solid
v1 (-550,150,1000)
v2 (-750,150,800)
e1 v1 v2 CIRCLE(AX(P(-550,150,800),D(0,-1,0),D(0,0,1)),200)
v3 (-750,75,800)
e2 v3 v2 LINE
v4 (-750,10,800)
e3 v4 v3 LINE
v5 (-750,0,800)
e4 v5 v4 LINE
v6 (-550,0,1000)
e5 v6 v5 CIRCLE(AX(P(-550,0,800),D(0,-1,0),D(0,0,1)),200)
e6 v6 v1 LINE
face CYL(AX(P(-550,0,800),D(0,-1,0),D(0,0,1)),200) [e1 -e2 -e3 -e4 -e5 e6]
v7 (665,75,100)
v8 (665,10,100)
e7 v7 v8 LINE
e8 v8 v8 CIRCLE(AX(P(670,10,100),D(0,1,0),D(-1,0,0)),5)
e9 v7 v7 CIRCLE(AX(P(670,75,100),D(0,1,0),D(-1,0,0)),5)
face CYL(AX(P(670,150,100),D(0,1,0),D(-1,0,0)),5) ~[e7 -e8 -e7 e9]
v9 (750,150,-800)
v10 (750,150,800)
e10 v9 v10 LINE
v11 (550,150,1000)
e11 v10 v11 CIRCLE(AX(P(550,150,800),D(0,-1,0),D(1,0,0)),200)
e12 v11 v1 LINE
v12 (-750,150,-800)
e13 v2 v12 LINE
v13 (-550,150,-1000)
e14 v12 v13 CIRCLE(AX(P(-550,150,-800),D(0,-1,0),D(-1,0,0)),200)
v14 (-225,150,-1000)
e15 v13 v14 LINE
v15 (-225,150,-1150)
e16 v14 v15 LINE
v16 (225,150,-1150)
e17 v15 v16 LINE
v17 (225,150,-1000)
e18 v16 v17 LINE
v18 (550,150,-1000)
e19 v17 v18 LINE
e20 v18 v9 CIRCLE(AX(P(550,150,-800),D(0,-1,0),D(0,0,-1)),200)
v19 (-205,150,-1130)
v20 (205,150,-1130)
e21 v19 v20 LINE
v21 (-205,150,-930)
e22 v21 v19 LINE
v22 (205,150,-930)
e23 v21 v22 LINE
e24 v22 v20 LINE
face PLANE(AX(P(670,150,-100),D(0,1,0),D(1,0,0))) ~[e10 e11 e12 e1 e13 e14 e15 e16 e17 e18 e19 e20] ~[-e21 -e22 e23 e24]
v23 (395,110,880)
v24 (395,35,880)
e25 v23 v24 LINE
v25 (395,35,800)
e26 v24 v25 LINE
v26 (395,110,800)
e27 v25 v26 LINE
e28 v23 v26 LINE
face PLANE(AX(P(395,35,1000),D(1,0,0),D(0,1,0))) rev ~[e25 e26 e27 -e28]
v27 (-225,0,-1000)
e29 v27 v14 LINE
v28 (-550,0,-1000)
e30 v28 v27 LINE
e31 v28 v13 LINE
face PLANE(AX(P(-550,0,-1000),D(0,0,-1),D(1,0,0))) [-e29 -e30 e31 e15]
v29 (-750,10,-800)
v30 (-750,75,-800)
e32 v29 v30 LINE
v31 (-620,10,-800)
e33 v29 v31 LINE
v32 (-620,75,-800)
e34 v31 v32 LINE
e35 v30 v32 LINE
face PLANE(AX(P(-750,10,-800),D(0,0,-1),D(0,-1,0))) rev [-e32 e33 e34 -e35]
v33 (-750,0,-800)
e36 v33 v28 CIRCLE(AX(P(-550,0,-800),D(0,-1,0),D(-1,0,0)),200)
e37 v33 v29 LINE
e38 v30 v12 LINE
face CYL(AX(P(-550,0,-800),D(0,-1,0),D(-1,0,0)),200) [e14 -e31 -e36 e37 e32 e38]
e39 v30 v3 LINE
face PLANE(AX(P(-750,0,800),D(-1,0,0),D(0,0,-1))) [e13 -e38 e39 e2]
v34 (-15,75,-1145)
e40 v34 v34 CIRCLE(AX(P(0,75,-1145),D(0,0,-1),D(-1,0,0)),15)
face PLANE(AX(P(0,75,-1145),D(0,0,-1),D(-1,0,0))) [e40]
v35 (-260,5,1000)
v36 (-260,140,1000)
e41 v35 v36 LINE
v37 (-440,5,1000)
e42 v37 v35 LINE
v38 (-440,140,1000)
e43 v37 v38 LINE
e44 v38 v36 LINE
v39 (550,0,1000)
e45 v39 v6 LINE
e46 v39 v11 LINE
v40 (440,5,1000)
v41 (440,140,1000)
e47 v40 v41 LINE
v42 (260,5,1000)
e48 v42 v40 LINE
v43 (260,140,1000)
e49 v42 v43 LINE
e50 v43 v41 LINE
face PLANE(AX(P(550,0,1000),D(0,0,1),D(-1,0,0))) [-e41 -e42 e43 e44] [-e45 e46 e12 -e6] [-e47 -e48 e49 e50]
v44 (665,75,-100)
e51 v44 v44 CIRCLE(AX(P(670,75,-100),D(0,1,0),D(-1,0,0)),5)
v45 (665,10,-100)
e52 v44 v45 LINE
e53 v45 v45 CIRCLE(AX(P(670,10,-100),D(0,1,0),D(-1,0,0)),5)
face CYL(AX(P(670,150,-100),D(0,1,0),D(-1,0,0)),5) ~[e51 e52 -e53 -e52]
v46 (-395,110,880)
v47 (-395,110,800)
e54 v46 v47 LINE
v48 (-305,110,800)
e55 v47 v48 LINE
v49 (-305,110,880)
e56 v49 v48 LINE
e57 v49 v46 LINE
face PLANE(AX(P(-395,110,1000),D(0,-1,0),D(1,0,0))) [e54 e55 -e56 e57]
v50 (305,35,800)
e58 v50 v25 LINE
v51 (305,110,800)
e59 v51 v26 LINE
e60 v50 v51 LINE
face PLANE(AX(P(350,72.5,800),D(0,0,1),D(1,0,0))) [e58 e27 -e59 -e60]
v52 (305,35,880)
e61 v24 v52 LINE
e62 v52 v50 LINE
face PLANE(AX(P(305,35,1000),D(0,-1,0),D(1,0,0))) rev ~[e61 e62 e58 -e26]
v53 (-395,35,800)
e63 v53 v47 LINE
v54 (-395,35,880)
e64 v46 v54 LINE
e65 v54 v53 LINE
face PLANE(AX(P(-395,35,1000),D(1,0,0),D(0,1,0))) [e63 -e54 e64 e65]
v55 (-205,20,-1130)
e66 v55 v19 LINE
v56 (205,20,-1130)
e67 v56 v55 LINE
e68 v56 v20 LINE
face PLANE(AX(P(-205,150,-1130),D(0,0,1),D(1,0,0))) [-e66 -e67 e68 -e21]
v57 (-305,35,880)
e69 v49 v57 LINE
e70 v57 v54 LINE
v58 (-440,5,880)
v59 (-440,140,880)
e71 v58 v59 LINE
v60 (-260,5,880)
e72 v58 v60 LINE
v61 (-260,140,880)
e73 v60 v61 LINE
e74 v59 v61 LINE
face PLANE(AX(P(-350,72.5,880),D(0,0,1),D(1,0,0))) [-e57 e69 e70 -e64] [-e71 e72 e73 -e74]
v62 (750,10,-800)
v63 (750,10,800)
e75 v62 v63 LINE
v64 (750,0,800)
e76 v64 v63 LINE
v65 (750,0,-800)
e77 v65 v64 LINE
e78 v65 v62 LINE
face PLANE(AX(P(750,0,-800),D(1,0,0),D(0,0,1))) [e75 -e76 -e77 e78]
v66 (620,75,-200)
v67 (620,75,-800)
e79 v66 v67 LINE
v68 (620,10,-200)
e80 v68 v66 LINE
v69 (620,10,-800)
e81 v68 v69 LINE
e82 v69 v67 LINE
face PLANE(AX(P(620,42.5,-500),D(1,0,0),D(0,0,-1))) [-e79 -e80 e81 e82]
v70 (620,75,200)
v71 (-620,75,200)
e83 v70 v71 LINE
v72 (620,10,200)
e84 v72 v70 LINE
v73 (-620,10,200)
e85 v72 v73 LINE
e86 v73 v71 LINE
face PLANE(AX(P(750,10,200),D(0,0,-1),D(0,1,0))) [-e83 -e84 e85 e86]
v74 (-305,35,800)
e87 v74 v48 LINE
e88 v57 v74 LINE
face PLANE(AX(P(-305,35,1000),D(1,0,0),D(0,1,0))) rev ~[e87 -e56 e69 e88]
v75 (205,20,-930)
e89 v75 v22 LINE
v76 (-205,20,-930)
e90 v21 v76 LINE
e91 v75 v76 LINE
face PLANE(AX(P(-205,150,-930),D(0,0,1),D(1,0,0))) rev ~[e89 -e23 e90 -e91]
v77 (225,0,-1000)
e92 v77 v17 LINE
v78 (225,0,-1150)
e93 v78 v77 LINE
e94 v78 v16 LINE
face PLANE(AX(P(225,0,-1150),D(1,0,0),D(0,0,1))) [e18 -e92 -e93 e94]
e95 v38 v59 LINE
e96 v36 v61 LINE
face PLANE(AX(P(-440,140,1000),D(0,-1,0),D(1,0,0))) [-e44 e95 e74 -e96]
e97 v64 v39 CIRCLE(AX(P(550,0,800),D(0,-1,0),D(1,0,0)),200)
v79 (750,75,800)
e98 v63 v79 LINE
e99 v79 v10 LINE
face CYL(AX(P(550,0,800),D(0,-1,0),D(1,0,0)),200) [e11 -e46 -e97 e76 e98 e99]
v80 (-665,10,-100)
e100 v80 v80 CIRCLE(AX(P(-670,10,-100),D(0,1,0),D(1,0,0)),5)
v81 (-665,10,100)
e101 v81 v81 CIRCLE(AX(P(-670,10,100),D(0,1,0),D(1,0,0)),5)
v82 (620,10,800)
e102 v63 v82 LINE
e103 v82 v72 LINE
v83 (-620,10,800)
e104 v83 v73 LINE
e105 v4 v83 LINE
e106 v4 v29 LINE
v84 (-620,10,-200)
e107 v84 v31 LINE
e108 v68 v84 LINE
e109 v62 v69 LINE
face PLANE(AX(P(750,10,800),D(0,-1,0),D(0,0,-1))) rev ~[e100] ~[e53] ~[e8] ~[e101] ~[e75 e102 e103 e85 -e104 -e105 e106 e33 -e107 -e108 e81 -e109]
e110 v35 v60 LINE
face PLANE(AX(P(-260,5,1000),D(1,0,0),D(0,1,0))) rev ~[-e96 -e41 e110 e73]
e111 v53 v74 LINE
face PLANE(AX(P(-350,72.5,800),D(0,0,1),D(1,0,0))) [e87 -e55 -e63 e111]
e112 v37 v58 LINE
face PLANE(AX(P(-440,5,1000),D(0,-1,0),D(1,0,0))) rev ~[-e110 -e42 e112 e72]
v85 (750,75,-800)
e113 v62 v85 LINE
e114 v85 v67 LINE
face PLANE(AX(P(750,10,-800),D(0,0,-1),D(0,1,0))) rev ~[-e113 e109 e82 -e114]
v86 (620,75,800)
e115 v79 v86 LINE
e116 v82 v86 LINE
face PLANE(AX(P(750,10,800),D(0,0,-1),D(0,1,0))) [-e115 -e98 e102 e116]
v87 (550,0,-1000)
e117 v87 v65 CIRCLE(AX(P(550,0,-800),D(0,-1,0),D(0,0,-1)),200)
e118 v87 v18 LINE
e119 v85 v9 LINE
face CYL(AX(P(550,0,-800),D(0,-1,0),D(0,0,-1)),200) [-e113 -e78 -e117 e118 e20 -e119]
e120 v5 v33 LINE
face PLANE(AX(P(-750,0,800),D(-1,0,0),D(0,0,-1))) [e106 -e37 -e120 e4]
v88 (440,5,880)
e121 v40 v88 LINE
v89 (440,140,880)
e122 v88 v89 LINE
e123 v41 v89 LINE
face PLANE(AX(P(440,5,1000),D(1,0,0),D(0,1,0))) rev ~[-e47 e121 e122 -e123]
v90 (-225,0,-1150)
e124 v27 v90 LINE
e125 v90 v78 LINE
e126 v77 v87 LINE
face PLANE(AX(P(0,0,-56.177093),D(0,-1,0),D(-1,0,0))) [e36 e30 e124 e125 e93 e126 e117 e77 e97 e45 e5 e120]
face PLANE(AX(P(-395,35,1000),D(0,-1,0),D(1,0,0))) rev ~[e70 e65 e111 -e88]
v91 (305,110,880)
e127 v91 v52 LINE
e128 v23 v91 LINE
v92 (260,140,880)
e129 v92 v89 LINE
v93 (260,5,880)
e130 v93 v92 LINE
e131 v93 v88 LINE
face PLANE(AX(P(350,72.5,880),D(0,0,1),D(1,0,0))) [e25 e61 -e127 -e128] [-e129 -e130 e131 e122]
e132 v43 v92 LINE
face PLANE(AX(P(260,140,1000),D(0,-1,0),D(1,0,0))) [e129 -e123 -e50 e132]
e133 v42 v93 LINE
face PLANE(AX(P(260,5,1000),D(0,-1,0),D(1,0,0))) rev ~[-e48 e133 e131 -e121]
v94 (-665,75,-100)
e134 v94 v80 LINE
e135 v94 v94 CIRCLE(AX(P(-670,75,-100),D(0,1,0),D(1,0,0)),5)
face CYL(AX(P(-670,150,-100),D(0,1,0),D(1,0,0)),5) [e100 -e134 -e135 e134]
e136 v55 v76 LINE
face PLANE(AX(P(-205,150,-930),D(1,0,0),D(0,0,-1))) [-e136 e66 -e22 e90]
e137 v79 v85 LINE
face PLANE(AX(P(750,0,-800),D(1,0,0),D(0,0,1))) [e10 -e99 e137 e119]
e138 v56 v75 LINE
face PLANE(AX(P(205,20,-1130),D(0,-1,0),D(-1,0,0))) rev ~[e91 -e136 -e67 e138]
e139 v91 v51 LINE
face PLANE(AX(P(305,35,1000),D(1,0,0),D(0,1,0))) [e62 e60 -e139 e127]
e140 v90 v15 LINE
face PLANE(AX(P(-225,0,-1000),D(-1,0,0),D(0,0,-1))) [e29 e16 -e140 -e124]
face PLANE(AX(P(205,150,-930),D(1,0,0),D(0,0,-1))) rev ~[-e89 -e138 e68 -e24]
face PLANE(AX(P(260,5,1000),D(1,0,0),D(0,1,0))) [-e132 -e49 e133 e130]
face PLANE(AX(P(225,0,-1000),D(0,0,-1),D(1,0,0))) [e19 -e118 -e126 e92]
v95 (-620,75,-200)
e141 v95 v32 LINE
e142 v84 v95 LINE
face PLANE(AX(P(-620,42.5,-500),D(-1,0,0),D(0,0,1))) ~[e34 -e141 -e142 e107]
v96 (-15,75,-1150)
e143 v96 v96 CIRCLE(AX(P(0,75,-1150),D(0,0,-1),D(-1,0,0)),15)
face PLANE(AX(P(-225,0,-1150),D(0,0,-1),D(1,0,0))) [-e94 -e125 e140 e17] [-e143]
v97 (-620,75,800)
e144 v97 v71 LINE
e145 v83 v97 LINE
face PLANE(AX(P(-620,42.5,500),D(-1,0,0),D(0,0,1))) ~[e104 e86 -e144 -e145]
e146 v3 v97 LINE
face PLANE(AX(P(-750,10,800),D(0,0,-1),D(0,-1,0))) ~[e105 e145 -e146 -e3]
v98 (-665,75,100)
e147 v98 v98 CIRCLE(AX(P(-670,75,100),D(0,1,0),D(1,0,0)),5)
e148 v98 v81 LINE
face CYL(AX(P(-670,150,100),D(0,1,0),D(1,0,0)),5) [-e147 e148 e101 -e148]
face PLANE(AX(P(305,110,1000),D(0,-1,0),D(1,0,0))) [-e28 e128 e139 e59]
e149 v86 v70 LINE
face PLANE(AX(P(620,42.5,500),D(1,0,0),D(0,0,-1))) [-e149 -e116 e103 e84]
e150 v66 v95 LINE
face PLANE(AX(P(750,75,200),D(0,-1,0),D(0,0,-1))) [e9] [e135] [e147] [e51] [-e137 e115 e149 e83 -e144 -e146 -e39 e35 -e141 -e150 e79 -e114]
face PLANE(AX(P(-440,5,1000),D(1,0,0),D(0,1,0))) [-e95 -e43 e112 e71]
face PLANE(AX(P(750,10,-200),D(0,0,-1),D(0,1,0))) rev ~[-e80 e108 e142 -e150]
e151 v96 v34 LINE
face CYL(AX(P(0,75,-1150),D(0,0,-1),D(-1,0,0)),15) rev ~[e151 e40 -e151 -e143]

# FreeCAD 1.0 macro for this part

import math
import FreeCAD as App
import Part
import Sketcher
from FreeCAD import Vector


def add_polygon(sketch, points):
    """Adds a closed chain of lines whose ends are joined by coincident constraints."""
    first, n = sketch.GeometryCount, len(points)
    for a, b in zip(points, points[1:] + points[:1]):
        sketch.addGeometry(Part.LineSegment(App.Vector(*a, 0), App.Vector(*b, 0)), False)
    for i in range(n):
        sketch.addConstraint(Sketcher.Constraint("Coincident", first + i, 2, first + (i + 1) % n, 1))

doc = App.newDocument("Part")
body = doc.addObject("PartDesign::Body", "Body")

# Sketch on XZ plane
sketch1 = body.newObject("Sketcher::SketchObject", "Sketch")
sketch1.AttachmentSupport = (doc.getObject("XZ_Plane"), [""])
sketch1.MapMode = "FlatFace"
sketch1.addGeometry(Part.LineSegment(Vector(-225, -1150, 0), Vector(-225, -1000, 0)), False)
sketch1.addGeometry(Part.LineSegment(Vector(-225, -1000, 0), Vector(-550, -1000, 0)), False)
sketch1.addGeometry(Part.ArcOfCircle(Part.Circle(Vector(-550, -800, 0), Vector(0, 0, 1), 200), math.radians(-180), math.radians(-90)), False)
sketch1.addGeometry(Part.LineSegment(Vector(-750, -800, 0), Vector(-750, 800, 0)), False)
sketch1.addGeometry(Part.ArcOfCircle(Part.Circle(Vector(-550, 800, 0), Vector(0, 0, 1), 200), math.radians(90), math.radians(180)), False)
sketch1.addGeometry(Part.LineSegment(Vector(-550, 1000, 0), Vector(550, 1000, 0)), False)
sketch1.addGeometry(Part.ArcOfCircle(Part.Circle(Vector(550, 800, 0), Vector(0, 0, 1), 200), math.radians(0), math.radians(90)), False)
sketch1.addGeometry(Part.LineSegment(Vector(750, 800, 0), Vector(750, -800, 0)), False)
sketch1.addGeometry(Part.ArcOfCircle(Part.Circle(Vector(550, -800, 0), Vector(0, 0, 1), 200), math.radians(-90), math.radians(0)), False)
sketch1.addGeometry(Part.LineSegment(Vector(550, -1000, 0), Vector(225, -1000, 0)), False)
sketch1.addGeometry(Part.LineSegment(Vector(225, -1000, 0), Vector(225, -1150, 0)), False)
sketch1.addGeometry(Part.LineSegment(Vector(225, -1150, 0), Vector(-225, -1150, 0)), False)
sketch1.addConstraint(Sketcher.Constraint("Coincident", 0, 2, 1, 1))
sketch1.addConstraint(Sketcher.Constraint("Tangent", 1, 2, 2, 2))
sketch1.addConstraint(Sketcher.Constraint("Tangent", 2, 1, 3, 1))
sketch1.addConstraint(Sketcher.Constraint("Tangent", 3, 2, 4, 2))
sketch1.addConstraint(Sketcher.Constraint("Tangent", 4, 1, 5, 1))
sketch1.addConstraint(Sketcher.Constraint("Tangent", 5, 2, 6, 2))
sketch1.addConstraint(Sketcher.Constraint("Tangent", 6, 1, 7, 1))
sketch1.addConstraint(Sketcher.Constraint("Tangent", 7, 2, 8, 2))
sketch1.addConstraint(Sketcher.Constraint("Tangent", 8, 1, 9, 1))
sketch1.addConstraint(Sketcher.Constraint("Coincident", 9, 2, 10, 1))
sketch1.addConstraint(Sketcher.Constraint("Coincident", 10, 2, 11, 1))
sketch1.addConstraint(Sketcher.Constraint("Coincident", 11, 2, 0, 1))
sketch1.addConstraint(Sketcher.Constraint("Vertical", 0))
sketch1.addConstraint(Sketcher.Constraint("Horizontal", 1))
sketch1.addConstraint(Sketcher.Constraint("Vertical", 3))
sketch1.addConstraint(Sketcher.Constraint("Horizontal", 5))
sketch1.addConstraint(Sketcher.Constraint("Vertical", 7))
sketch1.addConstraint(Sketcher.Constraint("Horizontal", 9))
sketch1.addConstraint(Sketcher.Constraint("Vertical", 10))
sketch1.addConstraint(Sketcher.Constraint("Horizontal", 11))
sketch1.addConstraint(Sketcher.Constraint("Equal", 2, 4))
sketch1.addConstraint(Sketcher.Constraint("Equal", 4, 6))
sketch1.addConstraint(Sketcher.Constraint("Equal", 6, 8))
sketch1.addConstraint(Sketcher.Constraint("Symmetric", 2, 3, 6, 3, -1, 1))
sketch1.addConstraint(Sketcher.Constraint("Symmetric", 0, 2, 9, 2, -2))
sketch1.addConstraint(Sketcher.Constraint("Radius", 2, 200.0))
sketch1.addConstraint(Sketcher.Constraint("DistanceX", 1, 2, 1, 1, 325.0))
sketch1.addConstraint(Sketcher.Constraint("DistanceX", 5, 1, 5, 2, 1100.0))
sketch1.addConstraint(Sketcher.Constraint("DistanceY", 0, 1, 0, 2, 150.0))
sketch1.addConstraint(Sketcher.Constraint("DistanceY", 3, 1, 3, 2, 1600.0))
pad1 = body.newObject("PartDesign::Pad", "Pad")
pad1.Profile = sketch1
pad1.Length = 150
pad1.Reversed = True

# Sketch on YZ plane
sketch2 = body.newObject("Sketcher::SketchObject", "Sketch001")
sketch2.AttachmentSupport = (doc.getObject("YZ_Plane"), [""])
sketch2.MapMode = "FlatFace"
sketch2.AttachmentOffset = App.Placement(Vector(0, 0, 750), App.Rotation())
add_polygon(sketch2, [(75, 200), (10, 200), (10, -200), (75, -200)])  # lines 0-3
sketch2.addConstraint(Sketcher.Constraint("Horizontal", 0))
sketch2.addConstraint(Sketcher.Constraint("Vertical", 1))
sketch2.addConstraint(Sketcher.Constraint("Horizontal", 2))
sketch2.addConstraint(Sketcher.Constraint("Vertical", 3))
sketch2.addConstraint(Sketcher.Constraint("DistanceX", 0, 2, 0, 1, 65.0))
sketch2.addConstraint(Sketcher.Constraint("DistanceY", 1, 2, 1, 1, 400.0))
sketch2.addConstraint(Sketcher.Constraint("DistanceX", -1, 1, 0, 2, 10.0))
sketch2.addConstraint(Sketcher.Constraint("DistanceY", -1, 1, 0, 2, 200.0))
pocket1 = body.newObject("PartDesign::Pocket", "Pocket")
pocket1.Profile = sketch2
pocket1.Type = "ThroughAll"
pocket1.Midplane = True

# Sketch on YZ plane
sketch3 = body.newObject("Sketcher::SketchObject", "Sketch002")
sketch3.AttachmentSupport = (doc.getObject("YZ_Plane"), [""])
sketch3.MapMode = "FlatFace"
sketch3.AttachmentOffset = App.Placement(Vector(0, 0, 750), App.Rotation())
add_polygon(sketch3, [(75, -200), (10, -200), (10, -800), (75, -800)])  # lines 0-3
add_polygon(sketch3, [(75, 800), (10, 800), (10, 200), (75, 200)])  # lines 4-7
sketch3.addConstraint(Sketcher.Constraint("Horizontal", 0))
sketch3.addConstraint(Sketcher.Constraint("Vertical", 1))
sketch3.addConstraint(Sketcher.Constraint("Horizontal", 2))
sketch3.addConstraint(Sketcher.Constraint("Vertical", 3))
sketch3.addConstraint(Sketcher.Constraint("Horizontal", 4))
sketch3.addConstraint(Sketcher.Constraint("Vertical", 5))
sketch3.addConstraint(Sketcher.Constraint("Horizontal", 6))
sketch3.addConstraint(Sketcher.Constraint("Vertical", 7))
sketch3.addConstraint(Sketcher.Constraint("Symmetric", 1, 2, 4, 2, -1))
sketch3.addConstraint(Sketcher.Constraint("Symmetric", 3, 2, 6, 2, -1))
sketch3.addConstraint(Sketcher.Constraint("DistanceX", 0, 2, 0, 1, 65.0))
sketch3.addConstraint(Sketcher.Constraint("DistanceY", 1, 2, 1, 1, 600.0))
sketch3.addConstraint(Sketcher.Constraint("DistanceX", -1, 1, 0, 2, 10.0))
sketch3.addConstraint(Sketcher.Constraint("DistanceY", 0, 2, -1, 1, 200.0))
pocket2 = body.newObject("PartDesign::Pocket", "Pocket001")
pocket2.Profile = sketch3
pocket2.Length = 130
doc.recompute()

mirrored = body.newObject("PartDesign::Mirrored", "Mirrored")
mirrored.Originals = [pocket2]
mirrored.MirrorPlane = (doc.getObject("YZ_Plane"), [""])
body.Tip = mirrored

# Sketch on XZ plane
sketch4 = body.newObject("Sketcher::SketchObject", "Sketch003")
sketch4.AttachmentSupport = (doc.getObject("XZ_Plane"), [""])
sketch4.MapMode = "FlatFace"
sketch4.AttachmentOffset = App.Placement(Vector(0, 0, -150), App.Rotation())
sketch4.addGeometry(Part.Circle(Vector(-670, -100, 0), Vector(0, 0, 1), 5), False)
sketch4.addGeometry(Part.Circle(Vector(-670, 100, 0), Vector(0, 0, 1), 5), False)
sketch4.addConstraint(Sketcher.Constraint("Equal", 0, 1))
sketch4.addConstraint(Sketcher.Constraint("Symmetric", 0, 3, 1, 3, -1))
sketch4.addConstraint(Sketcher.Constraint("Diameter", 0, 10.0))
sketch4.addConstraint(Sketcher.Constraint("DistanceX", 0, 3, -1, 1, 670.0))
sketch4.addConstraint(Sketcher.Constraint("DistanceY", 0, 3, -1, 1, 100.0))
pad2 = body.newObject("PartDesign::Pad", "Pad001")
pad2.Profile = sketch4
pad2.Length = 150
doc.recompute()

mirrored2 = body.newObject("PartDesign::Mirrored", "Mirrored001")
mirrored2.Originals = [pad2]
mirrored2.MirrorPlane = (doc.getObject("YZ_Plane"), [""])
body.Tip = mirrored2

# Sketch on XY plane
sketch5 = body.newObject("Sketcher::SketchObject", "Sketch004")
sketch5.AttachmentSupport = (doc.getObject("XY_Plane"), [""])
sketch5.MapMode = "FlatFace"
sketch5.AttachmentOffset = App.Placement(Vector(0, 0, 1000), App.Rotation())
add_polygon(sketch5, [(-395, 110), (-395, 35), (-305, 35), (-305, 110)])  # lines 0-3
add_polygon(sketch5, [(305, 110), (305, 35), (395, 35), (395, 110)])  # lines 4-7
sketch5.addConstraint(Sketcher.Constraint("Vertical", 0))
sketch5.addConstraint(Sketcher.Constraint("Horizontal", 1))
sketch5.addConstraint(Sketcher.Constraint("Vertical", 2))
sketch5.addConstraint(Sketcher.Constraint("Horizontal", 3))
sketch5.addConstraint(Sketcher.Constraint("Vertical", 4))
sketch5.addConstraint(Sketcher.Constraint("Horizontal", 5))
sketch5.addConstraint(Sketcher.Constraint("Vertical", 6))
sketch5.addConstraint(Sketcher.Constraint("Horizontal", 7))
sketch5.addConstraint(Sketcher.Constraint("Symmetric", 1, 2, 4, 2, -2))
sketch5.addConstraint(Sketcher.Constraint("Symmetric", 3, 2, 6, 2, -2))
sketch5.addConstraint(Sketcher.Constraint("DistanceX", 1, 1, 1, 2, 90.0))
sketch5.addConstraint(Sketcher.Constraint("DistanceY", 0, 2, 0, 1, 75.0))
sketch5.addConstraint(Sketcher.Constraint("DistanceX", 0, 2, -1, 1, 395.0))
sketch5.addConstraint(Sketcher.Constraint("DistanceY", -1, 1, 0, 2, 35.0))
pocket3 = body.newObject("PartDesign::Pocket", "Pocket002")
pocket3.Profile = sketch5
pocket3.Length = 200

# Sketch on XY plane
sketch6 = body.newObject("Sketcher::SketchObject", "Sketch005")
sketch6.AttachmentSupport = (doc.getObject("XY_Plane"), [""])
sketch6.MapMode = "FlatFace"
sketch6.AttachmentOffset = App.Placement(Vector(0, 0, -1150), App.Rotation())
sketch6.addGeometry(Part.Circle(Vector(0, 75, 0), Vector(0, 0, 1), 15), False)
sketch6.addConstraint(Sketcher.Constraint("PointOnObject", 0, 3, -2))
sketch6.addConstraint(Sketcher.Constraint("Diameter", 0, 30.0))
sketch6.addConstraint(Sketcher.Constraint("DistanceY", -1, 1, 0, 3, 75.0))
pocket4 = body.newObject("PartDesign::Pocket", "Pocket003")
pocket4.Profile = sketch6
pocket4.Length = 5
pocket4.Reversed = True

# Sketch on XY plane
sketch7 = body.newObject("Sketcher::SketchObject", "Sketch006")
sketch7.AttachmentSupport = (doc.getObject("XY_Plane"), [""])
sketch7.MapMode = "FlatFace"
sketch7.AttachmentOffset = App.Placement(Vector(0, 0, 1000), App.Rotation())
add_polygon(sketch7, [(-440, 140), (-440, 5), (-260, 5), (-260, 140)])  # lines 0-3
add_polygon(sketch7, [(260, 140), (260, 5), (440, 5), (440, 140)])  # lines 4-7
sketch7.addConstraint(Sketcher.Constraint("Vertical", 0))
sketch7.addConstraint(Sketcher.Constraint("Horizontal", 1))
sketch7.addConstraint(Sketcher.Constraint("Vertical", 2))
sketch7.addConstraint(Sketcher.Constraint("Horizontal", 3))
sketch7.addConstraint(Sketcher.Constraint("Vertical", 4))
sketch7.addConstraint(Sketcher.Constraint("Horizontal", 5))
sketch7.addConstraint(Sketcher.Constraint("Vertical", 6))
sketch7.addConstraint(Sketcher.Constraint("Horizontal", 7))
sketch7.addConstraint(Sketcher.Constraint("Symmetric", 1, 2, 4, 2, -2))
sketch7.addConstraint(Sketcher.Constraint("Symmetric", 3, 2, 6, 2, -2))
sketch7.addConstraint(Sketcher.Constraint("DistanceX", 1, 1, 1, 2, 180.0))
sketch7.addConstraint(Sketcher.Constraint("DistanceY", 0, 2, 0, 1, 135.0))
sketch7.addConstraint(Sketcher.Constraint("DistanceX", 0, 2, -1, 1, 440.0))
sketch7.addConstraint(Sketcher.Constraint("DistanceY", -1, 1, 0, 2, 5.0))
pocket5 = body.newObject("PartDesign::Pocket", "Pocket004")
pocket5.Profile = sketch7
pocket5.Length = 120

# Sketch on XY plane
sketch8 = body.newObject("Sketcher::SketchObject", "Sketch007")
sketch8.AttachmentSupport = (doc.getObject("XY_Plane"), [""])
sketch8.MapMode = "FlatFace"
sketch8.AttachmentOffset = App.Placement(Vector(0, 0, -1130), App.Rotation())
add_polygon(sketch8, [(205, 130), (205, 20), (-205, 20), (-205, 130)])  # lines 0-3
sketch8.addGeometry(Part.Circle(Vector(0, 75, 0), Vector(0, 0, 1), 15), False)  # 4
sketch8.addConstraint(Sketcher.Constraint("Vertical", 0))
sketch8.addConstraint(Sketcher.Constraint("Horizontal", 1))
sketch8.addConstraint(Sketcher.Constraint("Vertical", 2))
sketch8.addConstraint(Sketcher.Constraint("Horizontal", 3))
sketch8.addConstraint(Sketcher.Constraint("PointOnObject", 4, 3, -2))
sketch8.addConstraint(Sketcher.Constraint("Diameter", 4, 30.0))
sketch8.addConstraint(Sketcher.Constraint("DistanceX", 1, 2, 1, 1, 410.0))
sketch8.addConstraint(Sketcher.Constraint("DistanceY", 0, 2, 0, 1, 110.0))
sketch8.addConstraint(Sketcher.Constraint("DistanceY", -1, 1, 4, 3, 75.0))
sketch8.addConstraint(Sketcher.Constraint("DistanceX", -1, 1, 0, 2, 205.0))
sketch8.addConstraint(Sketcher.Constraint("DistanceY", -1, 1, 0, 2, 20.0))
pocket6 = body.newObject("PartDesign::Pocket", "Pocket005")
pocket6.Profile = sketch8
pocket6.Length = 200
pocket6.Reversed = True

# Sketch on XZ plane
sketch9 = body.newObject("Sketcher::SketchObject", "Sketch008")
sketch9.AttachmentSupport = (doc.getObject("XZ_Plane"), [""])
sketch9.MapMode = "FlatFace"
sketch9.AttachmentOffset = App.Placement(Vector(0, 0, -150), App.Rotation())
add_polygon(sketch9, [(-205, -1130), (-205, -930), (205, -930), (205, -1130)])  # lines 0-3
sketch9.addConstraint(Sketcher.Constraint("Vertical", 0))
sketch9.addConstraint(Sketcher.Constraint("Horizontal", 1))
sketch9.addConstraint(Sketcher.Constraint("Vertical", 2))
sketch9.addConstraint(Sketcher.Constraint("Horizontal", 3))
sketch9.addConstraint(Sketcher.Constraint("DistanceX", 1, 1, 1, 2, 410.0))
sketch9.addConstraint(Sketcher.Constraint("DistanceY", 0, 1, 0, 2, 200.0))
sketch9.addConstraint(Sketcher.Constraint("DistanceX", 0, 2, -1, 1, 205.0))
sketch9.addConstraint(Sketcher.Constraint("DistanceY", 0, 2, -1, 1, 930.0))
pocket7 = body.newObject("PartDesign::Pocket", "Pocket006")
pocket7.Profile = sketch9
pocket7.Length = 127
pocket7.Reversed = True

doc.recompute()
